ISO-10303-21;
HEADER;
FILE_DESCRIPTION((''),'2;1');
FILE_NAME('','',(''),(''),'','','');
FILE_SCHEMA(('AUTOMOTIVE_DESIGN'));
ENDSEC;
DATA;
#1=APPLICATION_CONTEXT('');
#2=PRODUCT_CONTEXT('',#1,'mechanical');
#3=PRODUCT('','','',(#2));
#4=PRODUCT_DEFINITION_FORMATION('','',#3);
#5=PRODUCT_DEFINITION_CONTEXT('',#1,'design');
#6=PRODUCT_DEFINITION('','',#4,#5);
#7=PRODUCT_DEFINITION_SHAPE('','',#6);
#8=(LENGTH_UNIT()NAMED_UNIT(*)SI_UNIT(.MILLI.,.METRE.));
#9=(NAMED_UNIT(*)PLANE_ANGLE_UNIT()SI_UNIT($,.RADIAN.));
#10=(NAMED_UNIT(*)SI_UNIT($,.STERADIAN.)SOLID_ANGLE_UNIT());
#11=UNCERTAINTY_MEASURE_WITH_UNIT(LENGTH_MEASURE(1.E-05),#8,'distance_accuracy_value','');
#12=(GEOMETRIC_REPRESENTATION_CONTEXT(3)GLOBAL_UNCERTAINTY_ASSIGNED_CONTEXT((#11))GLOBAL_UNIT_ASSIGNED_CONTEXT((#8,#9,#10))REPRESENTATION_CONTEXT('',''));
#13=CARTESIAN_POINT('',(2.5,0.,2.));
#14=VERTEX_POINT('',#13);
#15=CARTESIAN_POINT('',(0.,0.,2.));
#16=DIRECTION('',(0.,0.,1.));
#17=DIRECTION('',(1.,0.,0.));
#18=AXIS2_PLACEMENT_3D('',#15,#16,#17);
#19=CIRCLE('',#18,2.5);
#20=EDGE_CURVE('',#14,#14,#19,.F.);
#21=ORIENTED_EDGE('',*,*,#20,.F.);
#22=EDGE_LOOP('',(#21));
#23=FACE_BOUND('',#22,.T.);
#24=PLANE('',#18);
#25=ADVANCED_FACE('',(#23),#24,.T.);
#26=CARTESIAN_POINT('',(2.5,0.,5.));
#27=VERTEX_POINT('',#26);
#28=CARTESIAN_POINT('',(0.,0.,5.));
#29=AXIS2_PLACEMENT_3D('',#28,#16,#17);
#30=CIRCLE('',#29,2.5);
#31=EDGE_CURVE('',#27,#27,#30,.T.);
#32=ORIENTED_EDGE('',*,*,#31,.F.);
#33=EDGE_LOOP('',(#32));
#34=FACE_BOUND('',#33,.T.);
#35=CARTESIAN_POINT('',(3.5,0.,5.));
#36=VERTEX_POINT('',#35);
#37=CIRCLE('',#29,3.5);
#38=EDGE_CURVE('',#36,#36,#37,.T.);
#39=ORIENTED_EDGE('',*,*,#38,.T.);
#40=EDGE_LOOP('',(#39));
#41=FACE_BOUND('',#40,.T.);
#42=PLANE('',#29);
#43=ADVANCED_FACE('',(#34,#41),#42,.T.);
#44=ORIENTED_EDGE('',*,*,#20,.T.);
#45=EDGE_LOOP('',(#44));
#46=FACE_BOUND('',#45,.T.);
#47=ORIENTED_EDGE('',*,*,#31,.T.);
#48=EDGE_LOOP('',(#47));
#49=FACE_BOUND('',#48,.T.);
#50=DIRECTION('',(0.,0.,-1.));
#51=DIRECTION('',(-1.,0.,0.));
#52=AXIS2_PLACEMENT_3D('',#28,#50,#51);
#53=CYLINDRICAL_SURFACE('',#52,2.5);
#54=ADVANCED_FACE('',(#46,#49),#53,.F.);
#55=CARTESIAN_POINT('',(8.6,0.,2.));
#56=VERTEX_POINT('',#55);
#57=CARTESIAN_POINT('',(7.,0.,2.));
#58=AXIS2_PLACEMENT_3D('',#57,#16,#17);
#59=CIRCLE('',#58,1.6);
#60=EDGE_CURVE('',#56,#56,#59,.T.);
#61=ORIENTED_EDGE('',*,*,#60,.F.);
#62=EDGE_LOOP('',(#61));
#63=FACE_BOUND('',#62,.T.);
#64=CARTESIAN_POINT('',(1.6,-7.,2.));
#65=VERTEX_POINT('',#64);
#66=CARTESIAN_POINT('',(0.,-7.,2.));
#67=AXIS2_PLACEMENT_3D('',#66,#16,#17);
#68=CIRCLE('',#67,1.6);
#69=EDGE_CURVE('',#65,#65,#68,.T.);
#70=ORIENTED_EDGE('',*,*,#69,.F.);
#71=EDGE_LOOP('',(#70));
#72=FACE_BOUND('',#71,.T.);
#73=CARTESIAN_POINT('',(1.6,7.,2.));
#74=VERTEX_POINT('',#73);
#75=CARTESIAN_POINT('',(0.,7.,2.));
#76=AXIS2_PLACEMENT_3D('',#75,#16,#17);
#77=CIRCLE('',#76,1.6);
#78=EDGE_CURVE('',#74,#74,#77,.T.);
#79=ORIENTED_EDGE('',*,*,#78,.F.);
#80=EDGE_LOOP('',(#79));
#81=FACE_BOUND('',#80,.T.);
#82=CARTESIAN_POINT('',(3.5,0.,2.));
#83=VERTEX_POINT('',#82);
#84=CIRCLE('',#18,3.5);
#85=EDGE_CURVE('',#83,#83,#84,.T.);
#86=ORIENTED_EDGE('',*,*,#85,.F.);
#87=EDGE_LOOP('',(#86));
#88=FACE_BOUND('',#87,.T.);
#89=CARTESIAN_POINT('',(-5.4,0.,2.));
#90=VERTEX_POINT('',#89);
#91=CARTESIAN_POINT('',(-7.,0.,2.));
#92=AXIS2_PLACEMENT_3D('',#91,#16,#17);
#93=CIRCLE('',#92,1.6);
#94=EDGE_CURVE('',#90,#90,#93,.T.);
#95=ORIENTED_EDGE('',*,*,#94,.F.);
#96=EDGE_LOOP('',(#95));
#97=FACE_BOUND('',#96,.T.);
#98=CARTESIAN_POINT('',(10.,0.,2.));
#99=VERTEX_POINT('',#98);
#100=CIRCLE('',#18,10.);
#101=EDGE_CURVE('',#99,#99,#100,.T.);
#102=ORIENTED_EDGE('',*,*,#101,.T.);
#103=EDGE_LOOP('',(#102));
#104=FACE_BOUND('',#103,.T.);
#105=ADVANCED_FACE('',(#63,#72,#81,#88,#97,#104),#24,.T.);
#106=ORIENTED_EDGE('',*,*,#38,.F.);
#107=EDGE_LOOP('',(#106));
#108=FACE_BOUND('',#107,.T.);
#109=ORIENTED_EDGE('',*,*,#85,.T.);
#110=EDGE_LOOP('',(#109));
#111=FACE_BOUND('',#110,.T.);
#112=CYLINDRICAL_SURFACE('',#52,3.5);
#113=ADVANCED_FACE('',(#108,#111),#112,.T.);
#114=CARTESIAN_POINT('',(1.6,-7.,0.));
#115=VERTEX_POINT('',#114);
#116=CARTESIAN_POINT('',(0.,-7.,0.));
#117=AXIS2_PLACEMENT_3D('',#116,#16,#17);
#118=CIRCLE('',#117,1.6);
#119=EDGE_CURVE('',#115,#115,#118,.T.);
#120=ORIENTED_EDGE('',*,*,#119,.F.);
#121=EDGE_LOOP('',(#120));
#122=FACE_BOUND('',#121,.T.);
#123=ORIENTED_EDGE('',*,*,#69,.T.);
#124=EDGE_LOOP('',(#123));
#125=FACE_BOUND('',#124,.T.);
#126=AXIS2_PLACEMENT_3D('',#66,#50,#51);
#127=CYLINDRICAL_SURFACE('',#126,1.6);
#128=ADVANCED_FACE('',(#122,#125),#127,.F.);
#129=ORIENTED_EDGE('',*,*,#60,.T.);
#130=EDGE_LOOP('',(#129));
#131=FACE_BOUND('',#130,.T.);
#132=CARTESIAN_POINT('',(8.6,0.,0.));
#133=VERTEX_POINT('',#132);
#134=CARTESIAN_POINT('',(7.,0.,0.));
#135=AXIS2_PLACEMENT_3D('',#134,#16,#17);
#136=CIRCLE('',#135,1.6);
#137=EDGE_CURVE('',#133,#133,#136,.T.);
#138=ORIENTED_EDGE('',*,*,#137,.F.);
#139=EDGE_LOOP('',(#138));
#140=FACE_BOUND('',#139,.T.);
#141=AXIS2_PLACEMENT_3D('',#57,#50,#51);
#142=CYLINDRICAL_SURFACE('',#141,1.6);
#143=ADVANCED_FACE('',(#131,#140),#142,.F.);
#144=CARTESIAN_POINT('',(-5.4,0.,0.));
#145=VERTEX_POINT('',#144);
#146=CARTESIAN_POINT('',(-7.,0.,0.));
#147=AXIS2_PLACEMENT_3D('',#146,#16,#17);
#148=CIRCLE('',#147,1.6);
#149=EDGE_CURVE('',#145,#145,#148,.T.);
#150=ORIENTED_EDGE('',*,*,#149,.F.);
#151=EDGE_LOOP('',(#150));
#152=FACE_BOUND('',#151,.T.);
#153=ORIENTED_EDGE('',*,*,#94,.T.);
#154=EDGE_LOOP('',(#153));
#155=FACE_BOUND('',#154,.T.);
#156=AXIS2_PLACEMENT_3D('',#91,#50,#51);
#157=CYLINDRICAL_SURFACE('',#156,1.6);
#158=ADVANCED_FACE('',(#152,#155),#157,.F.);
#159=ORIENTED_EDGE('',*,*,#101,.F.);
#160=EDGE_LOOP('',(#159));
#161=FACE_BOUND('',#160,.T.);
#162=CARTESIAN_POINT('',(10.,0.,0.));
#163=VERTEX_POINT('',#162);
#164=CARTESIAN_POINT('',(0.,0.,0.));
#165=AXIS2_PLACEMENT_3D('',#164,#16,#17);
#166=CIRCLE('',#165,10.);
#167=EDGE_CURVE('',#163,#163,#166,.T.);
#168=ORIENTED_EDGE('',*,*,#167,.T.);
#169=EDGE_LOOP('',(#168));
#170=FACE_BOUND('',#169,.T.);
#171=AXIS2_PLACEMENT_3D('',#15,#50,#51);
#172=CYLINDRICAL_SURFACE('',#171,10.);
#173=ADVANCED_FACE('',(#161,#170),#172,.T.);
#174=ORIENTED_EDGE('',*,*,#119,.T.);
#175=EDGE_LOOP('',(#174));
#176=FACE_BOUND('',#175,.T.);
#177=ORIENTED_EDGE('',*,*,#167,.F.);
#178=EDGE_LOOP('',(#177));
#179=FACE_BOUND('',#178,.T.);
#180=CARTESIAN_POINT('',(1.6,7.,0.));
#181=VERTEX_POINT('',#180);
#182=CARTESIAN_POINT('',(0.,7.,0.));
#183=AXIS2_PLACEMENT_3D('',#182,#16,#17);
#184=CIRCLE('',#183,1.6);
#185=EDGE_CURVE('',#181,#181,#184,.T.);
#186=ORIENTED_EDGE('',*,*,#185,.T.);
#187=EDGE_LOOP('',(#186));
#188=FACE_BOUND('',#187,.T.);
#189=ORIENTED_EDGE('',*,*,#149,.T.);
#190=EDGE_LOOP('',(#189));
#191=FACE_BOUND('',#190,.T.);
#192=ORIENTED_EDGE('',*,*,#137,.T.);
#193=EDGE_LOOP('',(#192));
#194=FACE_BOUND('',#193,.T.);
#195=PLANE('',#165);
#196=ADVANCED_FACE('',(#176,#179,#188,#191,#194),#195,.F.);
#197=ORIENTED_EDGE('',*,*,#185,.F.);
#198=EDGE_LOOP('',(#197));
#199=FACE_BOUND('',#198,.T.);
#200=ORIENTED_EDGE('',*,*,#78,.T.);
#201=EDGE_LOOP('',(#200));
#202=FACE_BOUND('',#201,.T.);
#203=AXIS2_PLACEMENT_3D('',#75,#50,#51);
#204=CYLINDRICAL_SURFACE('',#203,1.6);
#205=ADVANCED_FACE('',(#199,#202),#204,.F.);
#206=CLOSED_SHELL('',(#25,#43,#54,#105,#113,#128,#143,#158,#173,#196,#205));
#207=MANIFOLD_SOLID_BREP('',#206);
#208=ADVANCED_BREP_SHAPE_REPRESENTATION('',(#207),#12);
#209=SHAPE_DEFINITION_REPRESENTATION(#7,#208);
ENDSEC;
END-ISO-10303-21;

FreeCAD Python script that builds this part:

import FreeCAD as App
import Part
import Sketcher

V = App.Vector
Q = App.Units.Quantity

doc = App.newDocument("Part")
body = doc.addObject("PartDesign::Body", "Body")

# Sketch on XY plane
sketch1 = doc.addObject("Sketcher::SketchObject", "Sketch")
body.addObject(sketch1)
sketch1.AttachmentSupport = (doc.XY_Plane, [""])
sketch1.MapMode = "FlatFace"
sketch1.addGeometry([
    Part.Circle(V(0, 0, 0), V(0, 0, 1), 10),  # 0
    Part.Circle(V(0, -7, 0), V(0, 0, 1), 1.6),  # 1
    Part.Circle(V(-7, 0, 0), V(0, 0, 1), 1.6),  # 2
    Part.Circle(V(0, 7, 0), V(0, 0, 1), 1.6),  # 3
    Part.Circle(V(7, 0, 0), V(0, 0, 1), 1.6),  # 4
], False)
sketch1.addConstraint([
    Sketcher.Constraint("Coincident", 0, 3, -1, 1),
    Sketcher.Constraint("Equal", 1, 2),
    Sketcher.Constraint("Equal", 2, 3),
    Sketcher.Constraint("Equal", 3, 4),
    Sketcher.Constraint("Symmetric", 1, 3, 3, 3, -1, 1),
    Sketcher.Constraint("Symmetric", 2, 3, 4, 3, -1, 1),
    Sketcher.Constraint("PointOnObject", 1, 3, -2),
    Sketcher.Constraint("PointOnObject", 2, 3, -1),
    Sketcher.Constraint("Diameter", 0, Q("20 mm")),
    Sketcher.Constraint("Diameter", 1, Q("3.2 mm")),
    Sketcher.Constraint("DistanceY", 1, 3, -1, 1, Q("7 mm")),
    Sketcher.Constraint("DistanceX", 2, 3, -1, 1, Q("7 mm")),
])
pad1 = doc.addObject("PartDesign::Pad", "Pad")
body.addObject(pad1)
pad1.Profile = sketch1
pad1.Length = 2

# Sketch on XY plane
sketch2 = doc.addObject("Sketcher::SketchObject", "Sketch001")
body.addObject(sketch2)
sketch2.AttachmentSupport = (doc.XY_Plane, [""])
sketch2.MapMode = "FlatFace"
sketch2.AttachmentOffset = App.Placement(V(0, 0, 2), App.Rotation())
sketch2.addGeometry([
    Part.Circle(V(0, 0, 0), V(0, 0, 1), 3.5),
    Part.Circle(V(0, 0, 0), V(0, 0, 1), 2.5),
], False)
sketch2.addConstraint([
    Sketcher.Constraint("Coincident", 0, 3, -1, 1),
    Sketcher.Constraint("Coincident", 1, 3, -1, 1),
    Sketcher.Constraint("Diameter", 0, Q("7 mm")),
    Sketcher.Constraint("Diameter", 1, Q("5 mm")),
])
pad2 = doc.addObject("PartDesign::Pad", "Pad001")
body.addObject(pad2)
pad2.Profile = sketch2
pad2.Length = 3

doc.recompute()
